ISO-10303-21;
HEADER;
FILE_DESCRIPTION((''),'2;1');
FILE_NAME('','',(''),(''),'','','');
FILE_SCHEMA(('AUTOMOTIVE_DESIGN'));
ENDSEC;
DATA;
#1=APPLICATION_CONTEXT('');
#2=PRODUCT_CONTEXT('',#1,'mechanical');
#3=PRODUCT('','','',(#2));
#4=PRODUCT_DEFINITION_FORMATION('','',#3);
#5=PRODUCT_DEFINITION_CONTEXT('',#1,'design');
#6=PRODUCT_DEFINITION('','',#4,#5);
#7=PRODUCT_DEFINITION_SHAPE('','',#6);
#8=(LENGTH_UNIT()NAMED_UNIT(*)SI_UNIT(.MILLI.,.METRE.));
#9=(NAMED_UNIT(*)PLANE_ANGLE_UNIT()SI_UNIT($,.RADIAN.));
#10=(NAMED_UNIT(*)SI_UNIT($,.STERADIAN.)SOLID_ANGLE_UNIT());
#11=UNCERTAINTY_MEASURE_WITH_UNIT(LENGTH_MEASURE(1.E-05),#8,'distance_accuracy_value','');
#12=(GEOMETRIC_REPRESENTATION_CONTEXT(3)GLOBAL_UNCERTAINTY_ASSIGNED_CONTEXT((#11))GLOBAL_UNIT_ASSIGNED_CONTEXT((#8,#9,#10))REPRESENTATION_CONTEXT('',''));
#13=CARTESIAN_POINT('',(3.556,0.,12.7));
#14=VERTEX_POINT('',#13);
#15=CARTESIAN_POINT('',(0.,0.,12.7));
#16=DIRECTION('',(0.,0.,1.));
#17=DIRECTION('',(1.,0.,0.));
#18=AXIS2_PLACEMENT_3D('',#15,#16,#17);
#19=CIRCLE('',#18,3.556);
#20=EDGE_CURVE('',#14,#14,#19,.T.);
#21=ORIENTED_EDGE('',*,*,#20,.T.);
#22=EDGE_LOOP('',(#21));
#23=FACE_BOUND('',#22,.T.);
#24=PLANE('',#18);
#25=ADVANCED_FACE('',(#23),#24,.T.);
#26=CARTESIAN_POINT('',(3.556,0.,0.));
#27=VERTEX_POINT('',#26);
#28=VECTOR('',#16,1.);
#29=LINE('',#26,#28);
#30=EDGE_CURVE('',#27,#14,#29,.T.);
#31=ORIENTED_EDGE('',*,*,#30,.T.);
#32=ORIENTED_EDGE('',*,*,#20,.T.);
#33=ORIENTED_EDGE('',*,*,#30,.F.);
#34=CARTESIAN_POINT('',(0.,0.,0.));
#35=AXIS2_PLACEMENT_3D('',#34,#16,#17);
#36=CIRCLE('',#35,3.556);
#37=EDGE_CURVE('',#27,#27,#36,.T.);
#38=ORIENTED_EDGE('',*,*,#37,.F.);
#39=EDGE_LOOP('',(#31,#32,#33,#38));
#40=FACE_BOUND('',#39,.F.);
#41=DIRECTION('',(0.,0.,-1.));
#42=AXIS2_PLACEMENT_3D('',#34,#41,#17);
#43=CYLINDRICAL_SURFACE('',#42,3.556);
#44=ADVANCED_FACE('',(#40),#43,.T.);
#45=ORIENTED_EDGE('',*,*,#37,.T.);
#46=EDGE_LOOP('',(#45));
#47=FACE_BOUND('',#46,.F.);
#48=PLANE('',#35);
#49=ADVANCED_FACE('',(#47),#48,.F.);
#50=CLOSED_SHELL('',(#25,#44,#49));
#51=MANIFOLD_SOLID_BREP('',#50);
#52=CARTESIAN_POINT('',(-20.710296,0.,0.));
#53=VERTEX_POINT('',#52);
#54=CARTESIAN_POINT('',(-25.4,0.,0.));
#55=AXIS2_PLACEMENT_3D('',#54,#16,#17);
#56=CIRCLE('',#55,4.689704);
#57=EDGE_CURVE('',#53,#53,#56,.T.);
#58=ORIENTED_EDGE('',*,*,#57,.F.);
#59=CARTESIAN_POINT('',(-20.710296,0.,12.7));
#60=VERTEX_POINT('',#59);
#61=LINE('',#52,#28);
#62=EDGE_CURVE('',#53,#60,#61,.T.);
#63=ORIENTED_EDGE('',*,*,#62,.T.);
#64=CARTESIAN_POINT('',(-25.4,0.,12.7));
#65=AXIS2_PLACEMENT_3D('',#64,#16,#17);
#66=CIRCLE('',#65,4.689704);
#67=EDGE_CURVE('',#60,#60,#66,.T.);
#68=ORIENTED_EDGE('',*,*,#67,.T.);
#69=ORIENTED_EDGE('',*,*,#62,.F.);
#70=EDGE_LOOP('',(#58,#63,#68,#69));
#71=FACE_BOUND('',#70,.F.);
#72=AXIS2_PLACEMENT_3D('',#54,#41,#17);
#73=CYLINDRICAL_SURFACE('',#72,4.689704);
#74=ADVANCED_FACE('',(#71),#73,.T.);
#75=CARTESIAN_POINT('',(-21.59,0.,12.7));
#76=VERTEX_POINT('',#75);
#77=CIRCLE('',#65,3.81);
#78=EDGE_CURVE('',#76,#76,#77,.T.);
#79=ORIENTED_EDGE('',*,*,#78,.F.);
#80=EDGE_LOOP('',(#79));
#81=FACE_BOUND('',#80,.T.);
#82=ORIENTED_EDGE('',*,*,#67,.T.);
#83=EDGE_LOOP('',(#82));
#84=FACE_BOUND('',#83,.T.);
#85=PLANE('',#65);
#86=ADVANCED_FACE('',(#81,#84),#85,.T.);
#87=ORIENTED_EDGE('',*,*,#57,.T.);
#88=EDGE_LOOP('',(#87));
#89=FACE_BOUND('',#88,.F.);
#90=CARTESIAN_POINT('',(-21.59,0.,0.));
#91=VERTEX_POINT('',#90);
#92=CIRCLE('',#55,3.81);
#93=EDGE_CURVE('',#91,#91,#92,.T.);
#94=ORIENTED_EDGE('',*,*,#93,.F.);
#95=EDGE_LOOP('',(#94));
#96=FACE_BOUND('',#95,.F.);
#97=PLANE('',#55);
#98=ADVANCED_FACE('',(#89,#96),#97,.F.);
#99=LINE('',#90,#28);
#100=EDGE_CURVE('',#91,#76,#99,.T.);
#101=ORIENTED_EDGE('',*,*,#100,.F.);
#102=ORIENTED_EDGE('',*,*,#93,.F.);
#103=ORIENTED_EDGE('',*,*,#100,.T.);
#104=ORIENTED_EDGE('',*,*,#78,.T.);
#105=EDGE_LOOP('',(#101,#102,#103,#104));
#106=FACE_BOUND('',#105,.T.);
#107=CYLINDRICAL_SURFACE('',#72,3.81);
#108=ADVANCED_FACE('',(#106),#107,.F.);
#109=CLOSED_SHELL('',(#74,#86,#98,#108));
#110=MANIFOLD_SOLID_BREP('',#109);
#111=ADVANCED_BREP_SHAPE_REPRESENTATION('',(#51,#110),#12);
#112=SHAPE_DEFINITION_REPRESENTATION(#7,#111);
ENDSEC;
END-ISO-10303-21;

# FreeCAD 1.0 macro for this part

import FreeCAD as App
import Part
import Sketcher
from FreeCAD import Vector
Q = App.Units.Quantity

doc = App.newDocument("Part")
body = doc.addObject("PartDesign::Body", "Body")
body.AllowCompound = True

# Sketch on XY plane
sketch1 = body.newObject("Sketcher::SketchObject", "Sketch")
sketch1.AttachmentSupport = (doc.getObject("XY_Plane"), [""])
sketch1.MapMode = "FlatFace"
sketch1.addGeometry([
    Part.Circle(Vector(-25.4, 0, 0), Vector(0, 0, 1), 4.7),
    Part.Circle(Vector(-25.4, 0, 0), Vector(0, 0, 1), 3.8),
    Part.Circle(Vector(0, 0, 0), Vector(0, 0, 1), 3.6),
], False)
sketch1.addConstraint([
    Sketcher.Constraint("Coincident", 2, 3, -1, 1),
    Sketcher.Constraint("Coincident", 1, 3, 0, 3),
    Sketcher.Constraint("PointOnObject", 0, 3, -1),
    Sketcher.Constraint("Diameter", 1, Q("0.3 in")),
    Sketcher.Constraint("Diameter", 2, Q("0.28 in")),
    Sketcher.Constraint("DistanceX", 0, 3, -1, 1, Q("1 in")),
    Sketcher.Constraint("Diameter", 0, Q("9.379408 mm")),
])
pad1 = body.newObject("PartDesign::Pad", "Pad")
pad1.Profile = sketch1
pad1.Length = Q("0.5 in")

doc.recompute()
